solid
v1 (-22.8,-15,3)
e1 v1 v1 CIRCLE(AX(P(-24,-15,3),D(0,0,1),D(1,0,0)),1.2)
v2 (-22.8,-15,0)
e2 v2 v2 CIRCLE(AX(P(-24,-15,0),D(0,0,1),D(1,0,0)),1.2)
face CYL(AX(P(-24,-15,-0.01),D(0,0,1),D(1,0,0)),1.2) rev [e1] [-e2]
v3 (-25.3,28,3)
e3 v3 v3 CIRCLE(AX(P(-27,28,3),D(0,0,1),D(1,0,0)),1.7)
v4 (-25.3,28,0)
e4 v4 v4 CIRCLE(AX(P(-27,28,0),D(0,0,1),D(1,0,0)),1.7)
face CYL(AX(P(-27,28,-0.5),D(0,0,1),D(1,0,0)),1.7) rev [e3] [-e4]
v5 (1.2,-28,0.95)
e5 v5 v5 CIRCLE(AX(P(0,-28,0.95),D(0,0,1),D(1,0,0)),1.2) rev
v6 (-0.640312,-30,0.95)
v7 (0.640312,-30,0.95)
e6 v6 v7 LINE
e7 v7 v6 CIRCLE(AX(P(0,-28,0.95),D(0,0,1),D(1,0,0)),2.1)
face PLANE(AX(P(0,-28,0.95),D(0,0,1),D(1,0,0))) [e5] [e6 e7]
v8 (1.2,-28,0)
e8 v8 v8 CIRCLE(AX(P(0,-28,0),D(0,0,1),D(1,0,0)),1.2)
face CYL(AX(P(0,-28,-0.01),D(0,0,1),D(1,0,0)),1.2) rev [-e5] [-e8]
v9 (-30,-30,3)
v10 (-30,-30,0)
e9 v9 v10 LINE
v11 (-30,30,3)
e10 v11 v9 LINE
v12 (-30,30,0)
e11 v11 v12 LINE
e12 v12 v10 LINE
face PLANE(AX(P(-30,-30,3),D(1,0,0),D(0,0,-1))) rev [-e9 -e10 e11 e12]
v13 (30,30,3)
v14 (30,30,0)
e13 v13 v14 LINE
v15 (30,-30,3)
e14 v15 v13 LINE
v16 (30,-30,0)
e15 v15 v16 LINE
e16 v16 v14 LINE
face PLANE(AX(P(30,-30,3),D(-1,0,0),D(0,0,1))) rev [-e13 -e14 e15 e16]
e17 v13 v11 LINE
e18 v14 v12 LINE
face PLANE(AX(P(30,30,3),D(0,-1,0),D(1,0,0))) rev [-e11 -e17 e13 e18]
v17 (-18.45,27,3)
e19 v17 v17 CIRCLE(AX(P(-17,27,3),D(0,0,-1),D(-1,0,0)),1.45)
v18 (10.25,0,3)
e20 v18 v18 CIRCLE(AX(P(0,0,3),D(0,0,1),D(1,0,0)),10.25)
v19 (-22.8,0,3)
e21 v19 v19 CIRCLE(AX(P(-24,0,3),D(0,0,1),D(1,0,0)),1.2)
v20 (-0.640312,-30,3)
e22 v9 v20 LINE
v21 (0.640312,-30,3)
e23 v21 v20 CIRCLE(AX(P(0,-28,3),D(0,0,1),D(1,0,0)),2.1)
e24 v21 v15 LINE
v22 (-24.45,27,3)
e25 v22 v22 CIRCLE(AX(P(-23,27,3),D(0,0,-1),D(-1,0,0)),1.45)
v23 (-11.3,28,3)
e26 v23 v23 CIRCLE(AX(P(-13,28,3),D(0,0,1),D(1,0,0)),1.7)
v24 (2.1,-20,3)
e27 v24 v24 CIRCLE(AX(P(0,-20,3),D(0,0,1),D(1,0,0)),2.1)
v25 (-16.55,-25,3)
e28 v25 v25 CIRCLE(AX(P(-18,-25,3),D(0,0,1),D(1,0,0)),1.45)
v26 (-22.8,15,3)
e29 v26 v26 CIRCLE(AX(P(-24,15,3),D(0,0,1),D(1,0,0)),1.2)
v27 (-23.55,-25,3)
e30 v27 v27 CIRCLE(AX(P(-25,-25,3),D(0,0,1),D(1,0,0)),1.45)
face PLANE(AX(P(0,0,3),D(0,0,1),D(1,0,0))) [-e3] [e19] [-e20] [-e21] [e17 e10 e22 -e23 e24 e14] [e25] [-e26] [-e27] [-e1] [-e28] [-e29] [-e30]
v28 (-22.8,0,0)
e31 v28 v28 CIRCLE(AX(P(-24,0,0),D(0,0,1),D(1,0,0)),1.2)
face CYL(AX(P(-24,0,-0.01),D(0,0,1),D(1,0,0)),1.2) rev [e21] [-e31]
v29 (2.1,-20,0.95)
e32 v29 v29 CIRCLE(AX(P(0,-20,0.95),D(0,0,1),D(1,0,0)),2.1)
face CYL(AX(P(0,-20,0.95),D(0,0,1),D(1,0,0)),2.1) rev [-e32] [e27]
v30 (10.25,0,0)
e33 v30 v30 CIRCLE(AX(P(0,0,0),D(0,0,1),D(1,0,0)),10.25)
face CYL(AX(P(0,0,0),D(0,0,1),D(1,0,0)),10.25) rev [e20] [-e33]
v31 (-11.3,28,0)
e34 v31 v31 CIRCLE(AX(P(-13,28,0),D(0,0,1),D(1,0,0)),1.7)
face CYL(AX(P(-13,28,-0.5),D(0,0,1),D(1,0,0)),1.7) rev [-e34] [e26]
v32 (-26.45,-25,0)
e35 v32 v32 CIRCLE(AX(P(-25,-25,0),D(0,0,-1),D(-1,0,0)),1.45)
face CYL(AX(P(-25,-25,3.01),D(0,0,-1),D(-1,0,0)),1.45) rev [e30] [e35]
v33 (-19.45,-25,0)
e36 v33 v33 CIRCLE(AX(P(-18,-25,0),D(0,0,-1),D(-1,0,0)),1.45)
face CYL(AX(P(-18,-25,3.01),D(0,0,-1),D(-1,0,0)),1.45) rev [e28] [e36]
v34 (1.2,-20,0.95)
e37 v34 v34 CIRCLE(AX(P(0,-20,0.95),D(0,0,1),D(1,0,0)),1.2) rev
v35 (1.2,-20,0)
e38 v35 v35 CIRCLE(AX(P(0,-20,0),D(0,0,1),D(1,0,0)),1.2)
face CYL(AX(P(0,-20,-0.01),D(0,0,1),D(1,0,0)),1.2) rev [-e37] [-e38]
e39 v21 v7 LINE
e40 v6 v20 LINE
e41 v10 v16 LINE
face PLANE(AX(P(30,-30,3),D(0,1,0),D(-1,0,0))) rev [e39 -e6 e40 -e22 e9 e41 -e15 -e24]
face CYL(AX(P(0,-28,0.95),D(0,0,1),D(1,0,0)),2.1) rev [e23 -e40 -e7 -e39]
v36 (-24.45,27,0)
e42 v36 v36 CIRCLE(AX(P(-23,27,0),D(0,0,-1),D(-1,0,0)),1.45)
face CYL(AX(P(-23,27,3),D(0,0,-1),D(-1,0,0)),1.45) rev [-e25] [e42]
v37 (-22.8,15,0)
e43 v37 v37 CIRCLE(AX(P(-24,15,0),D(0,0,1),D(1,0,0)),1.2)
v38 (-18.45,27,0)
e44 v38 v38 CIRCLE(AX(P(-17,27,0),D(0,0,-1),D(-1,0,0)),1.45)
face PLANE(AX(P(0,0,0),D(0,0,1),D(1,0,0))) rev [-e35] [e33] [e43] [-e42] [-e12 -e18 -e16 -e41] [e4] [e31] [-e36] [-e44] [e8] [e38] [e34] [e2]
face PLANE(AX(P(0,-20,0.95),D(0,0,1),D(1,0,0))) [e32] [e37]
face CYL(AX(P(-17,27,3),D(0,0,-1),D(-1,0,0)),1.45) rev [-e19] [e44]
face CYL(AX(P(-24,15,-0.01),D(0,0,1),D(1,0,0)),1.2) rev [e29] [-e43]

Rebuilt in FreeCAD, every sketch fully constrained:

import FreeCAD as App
import Part
import Sketcher

V = App.Vector
Q = App.Units.Quantity

doc = App.newDocument("Part")
body = doc.addObject("PartDesign::Body", "Body")

# Sketch on XY plane
sketch1 = doc.addObject("Sketcher::SketchObject", "Sketch")
body.addObject(sketch1)
sketch1.AttachmentSupport = (doc.XY_Plane, [""])
sketch1.MapMode = "FlatFace"
sketch1.addGeometry([
    Part.LineSegment(V(-30, 30, 0), V(-30, -30, 0)),
    Part.LineSegment(V(-30, -30, 0), V(30, -30, 0)),
    Part.LineSegment(V(30, -30, 0), V(30, 30, 0)),
    Part.LineSegment(V(30, 30, 0), V(-30, 30, 0)),
], False)
sketch1.addConstraint([
    Sketcher.Constraint("Coincident", 0, 2, 1, 1),
    Sketcher.Constraint("Coincident", 1, 2, 2, 1),
    Sketcher.Constraint("Coincident", 2, 2, 3, 1),
    Sketcher.Constraint("Coincident", 3, 2, 0, 1),
    Sketcher.Constraint("Vertical", 0),
    Sketcher.Constraint("Horizontal", 1),
    Sketcher.Constraint("Vertical", 2),
    Sketcher.Constraint("Horizontal", 3),
    Sketcher.Constraint("Symmetric", 0, 2, 2, 2, -1, 1),
    Sketcher.Constraint("Equal", 3, 0),
    Sketcher.Constraint("DistanceX", 1, 1, 1, 2, Q("60 mm")),
])
pad1 = doc.addObject("PartDesign::Pad", "Pad")
body.addObject(pad1)
pad1.Profile = sketch1
pad1.Length = 3

# Sketch on XY plane
sketch2 = doc.addObject("Sketcher::SketchObject", "Sketch001")
body.addObject(sketch2)
sketch2.AttachmentSupport = (doc.XY_Plane, [""])
sketch2.MapMode = "FlatFace"
sketch2.AttachmentOffset = App.Placement(V(0, 0, 3), App.Rotation())
sketch2.addGeometry(Part.Circle(V(0, 0, 0), V(0, 0, 1), 10.25), False)
sketch2.addConstraint([
    Sketcher.Constraint("Coincident", 0, 3, -1, 1),
    Sketcher.Constraint("Diameter", 0, Q("20.5 mm")),
])
pocket1 = doc.addObject("PartDesign::Pocket", "Pocket")
body.addObject(pocket1)
pocket1.Profile = sketch2
pocket1.Type = "ThroughAll"

# Sketch on XY plane
sketch3 = doc.addObject("Sketcher::SketchObject", "Sketch002")
body.addObject(sketch3)
sketch3.AttachmentSupport = (doc.XY_Plane, [""])
sketch3.MapMode = "FlatFace"
sketch3.addGeometry([
    Part.Circle(V(-18, -25, 0), V(0, 0, 1), 1.45),
    Part.Circle(V(-25, -25, 0), V(0, 0, 1), 1.45),
], False)
sketch3.addConstraint([
    Sketcher.Constraint("Equal", 0, 1),
    Sketcher.Constraint("Horizontal", 0, 3, 1, 3),
    Sketcher.Constraint("Diameter", 0, Q("2.9 mm")),
    Sketcher.Constraint("DistanceX", 0, 3, -1, 1, Q("18 mm")),
    Sketcher.Constraint("DistanceY", 0, 3, -1, 1, Q("25 mm")),
    Sketcher.Constraint("DistanceX", 1, 3, -1, 1, Q("25 mm")),
])
pocket2 = doc.addObject("PartDesign::Pocket", "Pocket001")
body.addObject(pocket2)
pocket2.Profile = sketch3
pocket2.Length = 3.01
pocket2.Reversed = True

# Sketch on XY plane
sketch4 = doc.addObject("Sketcher::SketchObject", "Sketch003")
body.addObject(sketch4)
sketch4.AttachmentSupport = (doc.XY_Plane, [""])
sketch4.MapMode = "FlatFace"
sketch4.addGeometry([
    Part.Circle(V(-17, 27, 0), V(0, 0, 1), 1.45),
    Part.Circle(V(-23, 27, 0), V(0, 0, 1), 1.45),
], False)
sketch4.addConstraint([
    Sketcher.Constraint("Equal", 0, 1),
    Sketcher.Constraint("Horizontal", 0, 3, 1, 3),
    Sketcher.Constraint("Diameter", 0, Q("2.9 mm")),
    Sketcher.Constraint("DistanceX", 0, 3, -1, 1, Q("17 mm")),
    Sketcher.Constraint("DistanceY", -1, 1, 0, 3, Q("27 mm")),
    Sketcher.Constraint("DistanceX", 1, 3, -1, 1, Q("23 mm")),
])
pocket3 = doc.addObject("PartDesign::Pocket", "Pocket002")
body.addObject(pocket3)
pocket3.Profile = sketch4
pocket3.Type = "ThroughAll"
pocket3.Reversed = True

# Sketch on XY plane
sketch5 = doc.addObject("Sketcher::SketchObject", "Sketch004")
body.addObject(sketch5)
sketch5.AttachmentSupport = (doc.XY_Plane, [""])
sketch5.MapMode = "FlatFace"
sketch5.AttachmentOffset = App.Placement(V(0, 0, 3), App.Rotation())
sketch5.addGeometry([
    Part.Circle(V(-24, -15, 0), V(0, 0, 1), 1.2),
    Part.Circle(V(-24, 0, 0), V(0, 0, 1), 1.2),
    Part.Circle(V(-24, 15, 0), V(0, 0, 1), 1.2),
], False)
sketch5.addConstraint([
    Sketcher.Constraint("Equal", 0, 1),
    Sketcher.Constraint("Equal", 1, 2),
    Sketcher.Constraint("Symmetric", 0, 3, 2, 3, -1),
    Sketcher.Constraint("PointOnObject", 1, 3, -1),
    Sketcher.Constraint("Vertical", 0, 3, 1, 3),
    Sketcher.Constraint("Diameter", 0, Q("2.4 mm")),
    Sketcher.Constraint("DistanceX", 0, 3, -1, 1, Q("24 mm")),
    Sketcher.Constraint("DistanceY", 0, 3, -1, 1, Q("15 mm")),
])
pocket4 = doc.addObject("PartDesign::Pocket", "Pocket003")
body.addObject(pocket4)
pocket4.Profile = sketch5
pocket4.Length = 3.01

# Sketch on XY plane
sketch6 = doc.addObject("Sketcher::SketchObject", "Sketch005")
body.addObject(sketch6)
sketch6.AttachmentSupport = (doc.XY_Plane, [""])
sketch6.MapMode = "FlatFace"
sketch6.AttachmentOffset = App.Placement(V(0, 0, 3), App.Rotation())
sketch6.addGeometry([
    Part.Circle(V(0, -28, 0), V(0, 0, 1), 1.2),
    Part.Circle(V(0, -20, 0), V(0, 0, 1), 1.2),
], False)
sketch6.addConstraint([
    Sketcher.Constraint("Equal", 0, 1),
    Sketcher.Constraint("PointOnObject", 0, 3, -2),
    Sketcher.Constraint("PointOnObject", 1, 3, -2),
    Sketcher.Constraint("Diameter", 0, Q("2.4 mm")),
    Sketcher.Constraint("DistanceY", 0, 3, -1, 1, Q("28 mm")),
    Sketcher.Constraint("DistanceY", 1, 3, -1, 1, Q("20 mm")),
])
pocket5 = doc.addObject("PartDesign::Pocket", "Pocket004")
body.addObject(pocket5)
pocket5.Profile = sketch6
pocket5.Length = 3.01

# Sketch on XY plane
sketch7 = doc.addObject("Sketcher::SketchObject", "Sketch006")
body.addObject(sketch7)
sketch7.AttachmentSupport = (doc.XY_Plane, [""])
sketch7.MapMode = "FlatFace"
sketch7.AttachmentOffset = App.Placement(V(0, 0, 3), App.Rotation())
sketch7.addGeometry([
    Part.Circle(V(0, -28, 0), V(0, 0, 1), 2.1),
    Part.Circle(V(0, -20, 0), V(0, 0, 1), 2.1),
], False)
sketch7.addConstraint([
    Sketcher.Constraint("Equal", 0, 1),
    Sketcher.Constraint("PointOnObject", 0, 3, -2),
    Sketcher.Constraint("PointOnObject", 1, 3, -2),
    Sketcher.Constraint("Diameter", 0, Q("4.2 mm")),
    Sketcher.Constraint("DistanceY", 0, 3, -1, 1, Q("28 mm")),
    Sketcher.Constraint("DistanceY", 1, 3, -1, 1, Q("20 mm")),
])
pocket6 = doc.addObject("PartDesign::Pocket", "Pocket005")
body.addObject(pocket6)
pocket6.Profile = sketch7
pocket6.Length = 2.05

# Sketch on XY plane
sketch8 = doc.addObject("Sketcher::SketchObject", "Sketch007")
body.addObject(sketch8)
sketch8.AttachmentSupport = (doc.XY_Plane, [""])
sketch8.MapMode = "FlatFace"
sketch8.AttachmentOffset = App.Placement(V(0, 0, 3), App.Rotation())
sketch8.addGeometry([
    Part.Circle(V(-27, 28, 0), V(0, 0, 1), 1.7),
    Part.Circle(V(-13, 28, 0), V(0, 0, 1), 1.7),
], False)
sketch8.addConstraint([
    Sketcher.Constraint("Equal", 0, 1),
    Sketcher.Constraint("Horizontal", 0, 3, 1, 3),
    Sketcher.Constraint("Diameter", 0, Q("3.4 mm")),
    Sketcher.Constraint("DistanceX", 0, 3, -1, 1, Q("27 mm")),
    Sketcher.Constraint("DistanceY", -1, 1, 0, 3, Q("28 mm")),
    Sketcher.Constraint("DistanceX", 1, 3, -1, 1, Q("13 mm")),
])
pocket7 = doc.addObject("PartDesign::Pocket", "Pocket006")
body.addObject(pocket7)
pocket7.Profile = sketch8
pocket7.Length = 3.5

doc.recompute()
